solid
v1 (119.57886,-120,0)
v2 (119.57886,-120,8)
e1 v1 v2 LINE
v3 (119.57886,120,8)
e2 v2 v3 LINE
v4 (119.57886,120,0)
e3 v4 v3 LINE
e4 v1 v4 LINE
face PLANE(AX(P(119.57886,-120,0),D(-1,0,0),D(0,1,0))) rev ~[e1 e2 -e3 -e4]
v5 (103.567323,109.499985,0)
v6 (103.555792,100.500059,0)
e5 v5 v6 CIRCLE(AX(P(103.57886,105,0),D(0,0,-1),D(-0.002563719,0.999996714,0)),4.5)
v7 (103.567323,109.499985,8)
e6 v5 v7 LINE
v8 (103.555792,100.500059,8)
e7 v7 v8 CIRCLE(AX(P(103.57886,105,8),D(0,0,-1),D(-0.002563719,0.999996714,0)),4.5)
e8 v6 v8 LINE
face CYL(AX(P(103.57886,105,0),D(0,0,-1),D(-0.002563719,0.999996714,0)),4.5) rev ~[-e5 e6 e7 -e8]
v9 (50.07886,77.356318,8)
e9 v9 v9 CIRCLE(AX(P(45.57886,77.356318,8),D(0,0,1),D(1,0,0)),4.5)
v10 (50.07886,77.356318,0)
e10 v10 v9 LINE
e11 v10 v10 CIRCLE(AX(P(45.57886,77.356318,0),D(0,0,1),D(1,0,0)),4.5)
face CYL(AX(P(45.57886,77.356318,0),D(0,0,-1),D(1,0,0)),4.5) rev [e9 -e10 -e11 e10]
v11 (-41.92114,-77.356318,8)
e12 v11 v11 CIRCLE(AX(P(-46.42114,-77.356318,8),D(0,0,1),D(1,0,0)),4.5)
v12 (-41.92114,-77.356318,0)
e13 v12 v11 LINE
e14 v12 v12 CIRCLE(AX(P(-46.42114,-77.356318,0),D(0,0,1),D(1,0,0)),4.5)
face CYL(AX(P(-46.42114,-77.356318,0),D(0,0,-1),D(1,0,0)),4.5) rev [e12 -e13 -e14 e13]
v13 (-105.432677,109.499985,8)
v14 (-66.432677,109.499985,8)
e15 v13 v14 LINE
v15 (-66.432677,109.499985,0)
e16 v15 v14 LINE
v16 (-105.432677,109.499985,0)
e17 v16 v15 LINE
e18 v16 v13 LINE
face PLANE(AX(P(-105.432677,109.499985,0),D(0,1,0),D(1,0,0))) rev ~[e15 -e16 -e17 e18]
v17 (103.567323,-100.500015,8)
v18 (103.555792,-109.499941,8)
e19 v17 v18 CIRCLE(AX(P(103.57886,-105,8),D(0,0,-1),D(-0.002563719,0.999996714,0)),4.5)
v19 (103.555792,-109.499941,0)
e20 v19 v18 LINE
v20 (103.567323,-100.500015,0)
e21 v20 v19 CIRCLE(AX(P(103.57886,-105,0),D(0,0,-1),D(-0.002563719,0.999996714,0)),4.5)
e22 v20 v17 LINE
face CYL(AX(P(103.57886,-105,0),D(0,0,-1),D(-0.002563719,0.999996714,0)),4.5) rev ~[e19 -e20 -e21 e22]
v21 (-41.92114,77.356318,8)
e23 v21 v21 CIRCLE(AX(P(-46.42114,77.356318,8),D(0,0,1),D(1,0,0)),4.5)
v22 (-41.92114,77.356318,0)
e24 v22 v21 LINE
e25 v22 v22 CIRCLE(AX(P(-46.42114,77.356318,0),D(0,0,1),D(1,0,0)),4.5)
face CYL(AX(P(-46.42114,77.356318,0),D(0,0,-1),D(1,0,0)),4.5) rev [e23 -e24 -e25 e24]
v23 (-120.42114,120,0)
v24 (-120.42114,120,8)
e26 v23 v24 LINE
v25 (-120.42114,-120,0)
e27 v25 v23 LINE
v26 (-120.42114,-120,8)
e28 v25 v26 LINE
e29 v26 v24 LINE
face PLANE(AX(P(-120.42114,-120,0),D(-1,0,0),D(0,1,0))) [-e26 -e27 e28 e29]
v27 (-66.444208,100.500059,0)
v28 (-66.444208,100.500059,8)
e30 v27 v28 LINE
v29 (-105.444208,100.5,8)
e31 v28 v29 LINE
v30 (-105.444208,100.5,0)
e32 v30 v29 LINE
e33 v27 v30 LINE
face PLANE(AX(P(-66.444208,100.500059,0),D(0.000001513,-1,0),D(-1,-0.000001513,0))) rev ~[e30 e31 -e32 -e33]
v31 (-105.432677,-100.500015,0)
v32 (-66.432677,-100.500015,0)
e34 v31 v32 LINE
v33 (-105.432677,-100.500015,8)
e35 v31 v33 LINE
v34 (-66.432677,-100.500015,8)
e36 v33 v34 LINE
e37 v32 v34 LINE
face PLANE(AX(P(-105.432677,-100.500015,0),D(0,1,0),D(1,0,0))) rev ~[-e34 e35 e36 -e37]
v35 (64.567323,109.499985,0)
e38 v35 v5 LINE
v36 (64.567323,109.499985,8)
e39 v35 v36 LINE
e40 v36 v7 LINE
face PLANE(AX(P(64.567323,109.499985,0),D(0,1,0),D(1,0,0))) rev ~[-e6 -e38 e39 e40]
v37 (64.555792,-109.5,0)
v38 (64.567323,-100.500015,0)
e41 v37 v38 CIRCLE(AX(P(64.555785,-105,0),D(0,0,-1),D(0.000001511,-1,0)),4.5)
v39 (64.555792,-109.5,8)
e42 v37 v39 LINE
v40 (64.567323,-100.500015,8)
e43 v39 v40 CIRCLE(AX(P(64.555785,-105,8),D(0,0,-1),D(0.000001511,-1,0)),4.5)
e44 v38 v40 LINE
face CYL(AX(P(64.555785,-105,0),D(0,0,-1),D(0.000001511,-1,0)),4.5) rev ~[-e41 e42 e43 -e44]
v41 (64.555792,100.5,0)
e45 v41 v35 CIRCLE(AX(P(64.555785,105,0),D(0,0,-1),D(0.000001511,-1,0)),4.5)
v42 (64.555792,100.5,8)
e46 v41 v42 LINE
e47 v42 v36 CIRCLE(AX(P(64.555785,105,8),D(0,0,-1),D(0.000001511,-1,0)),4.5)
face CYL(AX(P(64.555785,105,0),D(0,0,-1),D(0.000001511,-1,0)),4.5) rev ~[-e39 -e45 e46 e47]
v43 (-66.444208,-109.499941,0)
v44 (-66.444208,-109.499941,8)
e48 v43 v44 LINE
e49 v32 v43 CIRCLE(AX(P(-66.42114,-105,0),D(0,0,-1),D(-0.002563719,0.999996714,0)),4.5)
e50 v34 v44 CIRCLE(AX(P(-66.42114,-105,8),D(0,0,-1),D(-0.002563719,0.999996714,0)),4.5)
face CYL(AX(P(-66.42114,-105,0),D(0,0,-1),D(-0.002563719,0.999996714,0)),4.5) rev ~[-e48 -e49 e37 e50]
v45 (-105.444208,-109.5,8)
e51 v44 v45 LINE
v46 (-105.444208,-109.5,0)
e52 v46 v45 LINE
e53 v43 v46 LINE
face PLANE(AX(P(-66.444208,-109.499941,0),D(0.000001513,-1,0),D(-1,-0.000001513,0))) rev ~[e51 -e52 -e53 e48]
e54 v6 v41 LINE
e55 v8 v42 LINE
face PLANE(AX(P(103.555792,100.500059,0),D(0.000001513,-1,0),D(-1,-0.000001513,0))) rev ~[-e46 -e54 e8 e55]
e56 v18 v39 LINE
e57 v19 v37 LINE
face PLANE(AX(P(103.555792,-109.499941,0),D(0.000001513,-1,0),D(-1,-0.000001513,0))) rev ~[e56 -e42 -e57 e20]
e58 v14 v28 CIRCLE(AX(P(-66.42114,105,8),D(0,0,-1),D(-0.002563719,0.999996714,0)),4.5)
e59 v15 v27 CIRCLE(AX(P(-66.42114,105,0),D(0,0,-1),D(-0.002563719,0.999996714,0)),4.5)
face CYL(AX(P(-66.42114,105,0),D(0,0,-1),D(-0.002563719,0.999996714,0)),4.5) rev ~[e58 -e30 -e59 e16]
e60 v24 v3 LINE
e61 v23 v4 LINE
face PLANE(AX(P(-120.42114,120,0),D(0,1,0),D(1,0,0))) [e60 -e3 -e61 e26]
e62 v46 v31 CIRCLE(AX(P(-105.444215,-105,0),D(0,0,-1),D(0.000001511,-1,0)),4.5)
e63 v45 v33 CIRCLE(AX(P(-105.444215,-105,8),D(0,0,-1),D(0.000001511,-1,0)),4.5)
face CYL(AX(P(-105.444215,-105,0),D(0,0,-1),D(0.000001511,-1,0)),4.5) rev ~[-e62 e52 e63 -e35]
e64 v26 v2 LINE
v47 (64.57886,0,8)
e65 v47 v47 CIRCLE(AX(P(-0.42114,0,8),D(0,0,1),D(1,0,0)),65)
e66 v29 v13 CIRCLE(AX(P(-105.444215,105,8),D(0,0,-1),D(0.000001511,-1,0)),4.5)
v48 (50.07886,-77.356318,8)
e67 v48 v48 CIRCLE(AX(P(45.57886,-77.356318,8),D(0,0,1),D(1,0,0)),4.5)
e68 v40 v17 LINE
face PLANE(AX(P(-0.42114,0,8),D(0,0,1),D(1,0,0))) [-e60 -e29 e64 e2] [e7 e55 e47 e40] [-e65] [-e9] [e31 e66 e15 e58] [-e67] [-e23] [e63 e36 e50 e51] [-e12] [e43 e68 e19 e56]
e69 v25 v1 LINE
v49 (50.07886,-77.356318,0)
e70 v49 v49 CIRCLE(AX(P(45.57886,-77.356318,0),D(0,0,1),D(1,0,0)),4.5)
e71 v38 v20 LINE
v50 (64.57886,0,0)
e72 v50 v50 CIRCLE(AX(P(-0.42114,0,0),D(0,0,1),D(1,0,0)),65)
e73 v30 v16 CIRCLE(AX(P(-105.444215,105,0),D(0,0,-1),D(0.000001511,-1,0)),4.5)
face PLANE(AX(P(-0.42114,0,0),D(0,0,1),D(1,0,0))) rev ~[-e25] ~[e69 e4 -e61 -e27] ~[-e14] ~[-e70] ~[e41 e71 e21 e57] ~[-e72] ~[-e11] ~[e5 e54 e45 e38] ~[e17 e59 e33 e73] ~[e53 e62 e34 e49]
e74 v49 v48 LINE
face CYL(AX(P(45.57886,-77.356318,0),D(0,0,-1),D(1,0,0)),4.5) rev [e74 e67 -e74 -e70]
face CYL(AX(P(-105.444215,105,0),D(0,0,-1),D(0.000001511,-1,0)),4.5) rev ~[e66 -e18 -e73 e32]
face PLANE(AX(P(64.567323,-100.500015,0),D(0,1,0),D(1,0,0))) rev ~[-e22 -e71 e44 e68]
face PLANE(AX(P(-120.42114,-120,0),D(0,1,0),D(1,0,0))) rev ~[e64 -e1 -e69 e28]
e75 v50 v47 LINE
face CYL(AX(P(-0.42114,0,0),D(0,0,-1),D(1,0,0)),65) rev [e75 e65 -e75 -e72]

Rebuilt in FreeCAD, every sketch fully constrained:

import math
import FreeCAD as App
import Part
import Sketcher
from FreeCAD import Vector
Q = App.Units.Quantity

doc = App.newDocument("Part")
body = doc.addObject("PartDesign::Body", "Body")

sketch1 = body.newObject("Sketcher::SketchObject", "Sketch")
sketch1.AttachmentSupport = (doc.getObject("XY_Plane"), [""])
sketch1.MapMode = "FlatFace"
sketch1.addGeometry([
    Part.LineSegment(Vector(-120.42114, 120, 0), Vector(-120.42114, -120, 0)),
    Part.LineSegment(Vector(-120.42114, -120, 0), Vector(119.57886, -120, 0)),
    Part.LineSegment(Vector(119.57886, -120, 0), Vector(119.57886, 120, 0)),
    Part.LineSegment(Vector(119.57886, 120, 0), Vector(-120.42114, 120, 0)),
    Part.LineSegment(Vector(-66.444208, -109.499941, 0), Vector(-105.444208, -109.5, 0)),
    Part.ArcOfCircle(Part.Circle(Vector(-105.444215, -105, 0), Vector(0, 0, 1), 4.5), math.radians(89.853096), math.radians(270.000087)),
    Part.LineSegment(Vector(-105.432677, -100.500015, 0), Vector(-66.432677, -100.500015, 0)),
    Part.ArcOfCircle(Part.Circle(Vector(-66.42114, -105, 0), Vector(0, 0, 1), 4.5), math.radians(-90.293709), math.radians(90.14689)),
    Part.Circle(Vector(-46.42114, -77.356318, 0), Vector(0, 0, 1), 4.5),
    Part.Circle(Vector(45.57886, -77.356318, 0), Vector(0, 0, 1), 4.5),
    Part.LineSegment(Vector(103.555792, -109.499941, 0), Vector(64.555792, -109.5, 0)),
    Part.ArcOfCircle(Part.Circle(Vector(64.555785, -105, 0), Vector(0, 0, 1), 4.5), math.radians(89.853096), math.radians(270.000087)),
    Part.LineSegment(Vector(64.567323, -100.500015, 0), Vector(103.567323, -100.500015, 0)),
    Part.ArcOfCircle(Part.Circle(Vector(103.57886, -105, 0), Vector(0, 0, 1), 4.5), math.radians(-90.293709), math.radians(90.14689)),
    Part.LineSegment(Vector(-66.444208, 100.500059, 0), Vector(-105.444208, 100.5, 0)),
    Part.ArcOfCircle(Part.Circle(Vector(-105.444215, 105, 0), Vector(0, 0, 1), 4.5), math.radians(89.853096), math.radians(270.000087)),
    Part.LineSegment(Vector(-105.432677, 109.499985, 0), Vector(-66.432677, 109.499985, 0)),
    Part.ArcOfCircle(Part.Circle(Vector(-66.42114, 105, 0), Vector(0, 0, 1), 4.5), math.radians(-90.293709), math.radians(90.14689)),
    Part.Circle(Vector(-46.42114, 77.356318, 0), Vector(0, 0, 1), 4.5),
    Part.Circle(Vector(-0.42114, 0, 0), Vector(0, 0, 1), 65),
    Part.Circle(Vector(45.57886, 77.356318, 0), Vector(0, 0, 1), 4.5),
    Part.LineSegment(Vector(103.555792, 100.500059, 0), Vector(64.555792, 100.5, 0)),
    Part.ArcOfCircle(Part.Circle(Vector(64.555785, 105, 0), Vector(0, 0, 1), 4.5), math.radians(89.853096), math.radians(270.000087)),
    Part.LineSegment(Vector(64.567323, 109.499985, 0), Vector(103.567323, 109.499985, 0)),
    Part.ArcOfCircle(Part.Circle(Vector(103.57886, 105, 0), Vector(0, 0, 1), 4.5), math.radians(-90.293709), math.radians(90.14689)),
], False)
sketch1.addConstraint([
    Sketcher.Constraint("Coincident", 0, 2, 1, 1),
    Sketcher.Constraint("Coincident", 1, 2, 2, 1),
    Sketcher.Constraint("Coincident", 2, 2, 3, 1),
    Sketcher.Constraint("Coincident", 3, 2, 0, 1),
    Sketcher.Constraint("Tangent", 4, 2, 5, 2),
    Sketcher.Constraint("Coincident", 5, 1, 6, 1),
    Sketcher.Constraint("Coincident", 6, 2, 7, 2),
    Sketcher.Constraint("Coincident", 7, 1, 4, 1),
    Sketcher.Constraint("Tangent", 10, 2, 11, 2),
    Sketcher.Constraint("Coincident", 11, 1, 12, 1),
    Sketcher.Constraint("Coincident", 12, 2, 13, 2),
    Sketcher.Constraint("Coincident", 13, 1, 10, 1),
    Sketcher.Constraint("Tangent", 14, 2, 15, 2),
    Sketcher.Constraint("Coincident", 15, 1, 16, 1),
    Sketcher.Constraint("Coincident", 16, 2, 17, 2),
    Sketcher.Constraint("Coincident", 17, 1, 14, 1),
    Sketcher.Constraint("Tangent", 21, 2, 22, 2),
    Sketcher.Constraint("Coincident", 22, 1, 23, 1),
    Sketcher.Constraint("Coincident", 23, 2, 24, 2),
    Sketcher.Constraint("Coincident", 24, 1, 21, 1),
    Sketcher.Constraint("Vertical", 0),
    Sketcher.Constraint("Horizontal", 1),
    Sketcher.Constraint("Vertical", 2),
    Sketcher.Constraint("Horizontal", 3),
    Sketcher.Constraint("Horizontal", 6),
    Sketcher.Constraint("Horizontal", 12),
    Sketcher.Constraint("Horizontal", 16),
    Sketcher.Constraint("Horizontal", 23),
    Sketcher.Constraint("Equal", 5, 7),
    Sketcher.Constraint("Equal", 7, 8),
    Sketcher.Constraint("Equal", 8, 9),
    Sketcher.Constraint("Equal", 9, 11),
    Sketcher.Constraint("Equal", 11, 13),
    Sketcher.Constraint("Equal", 13, 15),
    Sketcher.Constraint("Equal", 15, 17),
    Sketcher.Constraint("Equal", 17, 18),
    Sketcher.Constraint("Equal", 18, 20),
    Sketcher.Constraint("Equal", 20, 22),
    Sketcher.Constraint("Equal", 22, 24),
    Sketcher.Constraint("Symmetric", 5, 3, 15, 3, -1),
    Sketcher.Constraint("Symmetric", 7, 3, 17, 3, -1),
    Sketcher.Constraint("Symmetric", 8, 3, 18, 3, -1),
    Sketcher.Constraint("Symmetric", 9, 3, 20, 3, -1),
    Sketcher.Constraint("Symmetric", 11, 3, 22, 3, -1),
    Sketcher.Constraint("Symmetric", 13, 3, 24, 3, -1),
    Sketcher.Constraint("PointOnObject", 19, 3, -1),
    Sketcher.Constraint("Parallel", 4, 10),
    Sketcher.Constraint("Parallel", 10, 14),
    Sketcher.Constraint("Parallel", 14, 21),
    Sketcher.Constraint("Horizontal", 8, 3, 9, 3),
    Sketcher.Constraint("Horizontal", 7, 3, 11, 3),
    Sketcher.Constraint("Vertical", 5, 1, 15, 1),
    Sketcher.Constraint("Vertical", 6, 2, 16, 2),
    Sketcher.Constraint("Vertical", 11, 1, 22, 1),
    Sketcher.Constraint("Vertical", 12, 2, 23, 2),
    Sketcher.Constraint("Equal", 6, 12),
    Sketcher.Constraint("Equal", 3, 0),
    Sketcher.Constraint("Equal", 4, 10),
    Sketcher.Constraint("Diameter", 8, Q("9 mm")),
    Sketcher.Constraint("Diameter", 19, Q("130 mm")),
    Sketcher.Constraint("DistanceX", 1, 1, 1, 2, Q("240 mm")),
    Sketcher.Constraint("DistanceX", 6, 1, 6, 2, Q("39 mm")),
    Sketcher.Constraint("Distance", 4, Q("39 mm")),
    Sketcher.Constraint("DistanceY", 5, 3, -1, 1, Q("105 mm")),
    Sketcher.Constraint("DistanceY", 0, 2, -1, 1, Q("120 mm")),
    Sketcher.Constraint("DistanceX", 7, 3, 8, 3, Q("20 mm")),
    Sketcher.Constraint("DistanceX", 8, 3, 9, 3, Q("92 mm")),
    Sketcher.Constraint("DistanceX", 5, 3, 11, 3, Q("170 mm")),
    Sketcher.Constraint("DistanceX", 8, 3, 19, 3, Q("46 mm")),
    Sketcher.Constraint("DistanceX", 0, 2, 7, 3, Q("54 mm")),
    Sketcher.Constraint("DistanceX", 7, 3, -1, 1, Q("66.42114 mm")),
    Sketcher.Constraint("DistanceY", 8, 3, -1, 1, Q("77.356318 mm")),
    Sketcher.Constraint("DistanceX", 4, 2, -1, 1, Q("105.444208 mm")),
])
pad1 = body.newObject("PartDesign::Pad", "Pad")
pad1.Profile = sketch1
pad1.Length = 8

doc.recompute()
